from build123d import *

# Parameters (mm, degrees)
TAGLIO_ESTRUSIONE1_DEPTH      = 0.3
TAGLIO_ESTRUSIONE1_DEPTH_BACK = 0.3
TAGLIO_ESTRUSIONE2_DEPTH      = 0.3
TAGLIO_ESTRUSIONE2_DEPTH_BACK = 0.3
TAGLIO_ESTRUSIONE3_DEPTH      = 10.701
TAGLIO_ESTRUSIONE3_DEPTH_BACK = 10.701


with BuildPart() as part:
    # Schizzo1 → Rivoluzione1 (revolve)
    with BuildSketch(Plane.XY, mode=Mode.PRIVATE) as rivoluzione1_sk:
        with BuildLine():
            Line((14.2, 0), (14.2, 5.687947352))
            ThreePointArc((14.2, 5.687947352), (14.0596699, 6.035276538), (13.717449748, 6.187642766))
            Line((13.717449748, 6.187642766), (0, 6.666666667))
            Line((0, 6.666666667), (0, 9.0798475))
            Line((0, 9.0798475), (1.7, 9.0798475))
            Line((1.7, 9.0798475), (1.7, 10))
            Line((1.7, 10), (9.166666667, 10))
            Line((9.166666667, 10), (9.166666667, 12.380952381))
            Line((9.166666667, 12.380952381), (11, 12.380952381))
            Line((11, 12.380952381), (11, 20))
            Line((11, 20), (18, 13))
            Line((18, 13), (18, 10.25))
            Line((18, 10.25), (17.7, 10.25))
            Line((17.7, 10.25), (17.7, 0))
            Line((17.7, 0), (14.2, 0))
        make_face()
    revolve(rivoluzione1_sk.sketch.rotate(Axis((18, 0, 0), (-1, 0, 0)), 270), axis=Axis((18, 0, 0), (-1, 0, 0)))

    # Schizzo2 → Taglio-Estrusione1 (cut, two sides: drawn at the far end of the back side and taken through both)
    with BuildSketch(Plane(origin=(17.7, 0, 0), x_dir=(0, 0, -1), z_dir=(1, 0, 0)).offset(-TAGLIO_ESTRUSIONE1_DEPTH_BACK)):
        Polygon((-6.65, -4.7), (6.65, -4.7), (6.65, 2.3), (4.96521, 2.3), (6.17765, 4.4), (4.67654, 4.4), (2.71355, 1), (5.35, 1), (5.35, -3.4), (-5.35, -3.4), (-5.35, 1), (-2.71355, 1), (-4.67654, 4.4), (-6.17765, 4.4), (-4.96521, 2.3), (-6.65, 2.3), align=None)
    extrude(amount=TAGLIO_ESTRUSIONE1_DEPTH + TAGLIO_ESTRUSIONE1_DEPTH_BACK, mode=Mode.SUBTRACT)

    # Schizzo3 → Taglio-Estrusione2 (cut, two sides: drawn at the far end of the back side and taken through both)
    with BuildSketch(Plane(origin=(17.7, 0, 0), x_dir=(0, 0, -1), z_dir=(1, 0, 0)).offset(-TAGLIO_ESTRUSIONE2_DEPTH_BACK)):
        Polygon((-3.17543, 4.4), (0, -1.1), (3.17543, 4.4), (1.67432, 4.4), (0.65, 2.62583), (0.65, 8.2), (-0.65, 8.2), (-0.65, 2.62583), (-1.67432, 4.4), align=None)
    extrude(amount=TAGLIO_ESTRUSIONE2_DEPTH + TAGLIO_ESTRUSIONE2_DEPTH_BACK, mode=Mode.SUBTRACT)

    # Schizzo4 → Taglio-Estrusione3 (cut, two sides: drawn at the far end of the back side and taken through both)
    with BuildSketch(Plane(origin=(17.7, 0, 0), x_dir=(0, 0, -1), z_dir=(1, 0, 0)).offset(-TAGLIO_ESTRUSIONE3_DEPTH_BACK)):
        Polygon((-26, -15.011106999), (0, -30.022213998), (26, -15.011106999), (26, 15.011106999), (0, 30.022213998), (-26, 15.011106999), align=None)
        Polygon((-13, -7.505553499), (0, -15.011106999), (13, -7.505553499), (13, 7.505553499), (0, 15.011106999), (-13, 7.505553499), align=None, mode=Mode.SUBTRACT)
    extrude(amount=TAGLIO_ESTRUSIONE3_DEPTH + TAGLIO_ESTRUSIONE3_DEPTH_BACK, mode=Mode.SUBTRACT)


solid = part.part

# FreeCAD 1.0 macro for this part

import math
import FreeCAD as App
import Part
import Sketcher
Q = App.Units.Quantity

doc = App.newDocument("Part")
params = doc.addObject("Spreadsheet::Sheet", "Params")
for row, (alias, value) in enumerate([
    ("sketch1_radius", "0.5 mm"),
    ("sketch1_width", "3.5 mm"),
    ("sketch1_width2", "0.3 mm"),
    ("sketch1_width3", "1.7 mm"),
    ("sketch1_height", "10.25 mm"),
    ("revolution_angle", "360 deg"),
    ("sketch2_width", "7 mm"),
    ("sketch2_width2", "4.4 mm"),
    ("sketch2_height", "13.3 mm"),
    ("sketch2_height2", "10.7 mm"),
    ("pocket1_length", "0.3 mm"),
    ("pocket1_length2", "0.3 mm"),
    ("sketch3_height", "1.3 mm"),
    ("pocket2_length", "0.3 mm"),
    ("pocket2_length2", "0.3 mm"),
], start=1):
    params.set(f"A{row}", alias)
    params.set(f"B{row}", "=" + value)
    params.setAlias(f"B{row}", alias)

body = doc.addObject("PartDesign::Body", "Body")

# Sketch on XY plane
sketch1 = doc.addObject("Sketcher::SketchObject", "Sketch")
body.addObject(sketch1)
sketch1.AttachmentSupport = (doc.XY_Plane, [""])
sketch1.MapMode = "FlatFace"
sketch1.addGeometry(Part.LineSegment(App.Vector(14.2, 5.687947, 0), App.Vector(14.2, 0, 0)), False)
sketch1.addGeometry(Part.LineSegment(App.Vector(14.2, 0, 0), App.Vector(17.7, 0, 0)), False)
sketch1.addGeometry(Part.LineSegment(App.Vector(17.7, 0, 0), App.Vector(17.7, 10.25, 0)), False)
sketch1.addGeometry(Part.LineSegment(App.Vector(17.7, 10.25, 0), App.Vector(18, 10.25, 0)), False)
sketch1.addGeometry(Part.LineSegment(App.Vector(18, 10.25, 0), App.Vector(18, 13, 0)), False)
sketch1.addGeometry(Part.LineSegment(App.Vector(18, 13, 0), App.Vector(11, 20, 0)), False)
sketch1.addGeometry(Part.LineSegment(App.Vector(11, 20, 0), App.Vector(11, 12.380952, 0)), False)
sketch1.addGeometry(Part.LineSegment(App.Vector(11, 12.380952, 0), App.Vector(9.166667, 12.380952, 0)), False)
sketch1.addGeometry(Part.LineSegment(App.Vector(9.166667, 12.380952, 0), App.Vector(9.166667, 10, 0)), False)
sketch1.addGeometry(Part.LineSegment(App.Vector(9.166667, 10, 0), App.Vector(1.7, 10, 0)), False)
sketch1.addGeometry(Part.LineSegment(App.Vector(1.7, 10, 0), App.Vector(1.7, 9.079847, 0)), False)
sketch1.addGeometry(Part.LineSegment(App.Vector(1.7, 9.079847, 0), App.Vector(0, 9.079847, 0)), False)
sketch1.addGeometry(Part.LineSegment(App.Vector(0, 9.079847, 0), App.Vector(0, 6.666667, 0)), False)
sketch1.addGeometry(Part.LineSegment(App.Vector(0, 6.666667, 0), App.Vector(13.71745, 6.187643, 0)), False)
sketch1.addGeometry(Part.ArcOfCircle(Part.Circle(App.Vector(13.7, 5.687947, 0), App.Vector(0, 0, 1), 0.5), math.radians(0), math.radians(88)), False)
sketch1.addConstraint(Sketcher.Constraint("Coincident", 0, 2, 1, 1))
sketch1.addConstraint(Sketcher.Constraint("Coincident", 1, 2, 2, 1))
sketch1.addConstraint(Sketcher.Constraint("Coincident", 2, 2, 3, 1))
sketch1.addConstraint(Sketcher.Constraint("Coincident", 3, 2, 4, 1))
sketch1.addConstraint(Sketcher.Constraint("Coincident", 4, 2, 5, 1))
sketch1.addConstraint(Sketcher.Constraint("Coincident", 5, 2, 6, 1))
sketch1.addConstraint(Sketcher.Constraint("Coincident", 6, 2, 7, 1))
sketch1.addConstraint(Sketcher.Constraint("Coincident", 7, 2, 8, 1))
sketch1.addConstraint(Sketcher.Constraint("Coincident", 8, 2, 9, 1))
sketch1.addConstraint(Sketcher.Constraint("Coincident", 9, 2, 10, 1))
sketch1.addConstraint(Sketcher.Constraint("Coincident", 10, 2, 11, 1))
sketch1.addConstraint(Sketcher.Constraint("Coincident", 11, 2, 12, 1))
sketch1.addConstraint(Sketcher.Constraint("Coincident", 12, 2, 13, 1))
sketch1.addConstraint(Sketcher.Constraint("Tangent", 13, 2, 14, 2))
sketch1.addConstraint(Sketcher.Constraint("Tangent", 14, 1, 0, 1))
sketch1.addConstraint(Sketcher.Constraint("Vertical", 0))
sketch1.addConstraint(Sketcher.Constraint("Horizontal", 1))
sketch1.addConstraint(Sketcher.Constraint("Vertical", 2))
sketch1.addConstraint(Sketcher.Constraint("Horizontal", 3))
sketch1.addConstraint(Sketcher.Constraint("Vertical", 4))
sketch1.addConstraint(Sketcher.Constraint("Vertical", 6))
sketch1.addConstraint(Sketcher.Constraint("Horizontal", 7))
sketch1.addConstraint(Sketcher.Constraint("Vertical", 8))
sketch1.addConstraint(Sketcher.Constraint("Horizontal", 9))
sketch1.addConstraint(Sketcher.Constraint("Vertical", 10))
sketch1.addConstraint(Sketcher.Constraint("Horizontal", 11))
sketch1.addConstraint(Sketcher.Constraint("Vertical", 12))
sketch1.addConstraint(Sketcher.Constraint("PointOnObject", 0, 2, -1))
sketch1.addConstraint(Sketcher.Constraint("PointOnObject", 11, 2, -2))
sketch1.addConstraint(Sketcher.Constraint("Radius", 14, Q("0.5 mm")))
sketch1.addConstraint(Sketcher.Constraint("Angle", 5, Q("135 deg")))
sketch1.addConstraint(Sketcher.Constraint("Angle", 13, Q("-2 deg")))
sketch1.addConstraint(Sketcher.Constraint("DistanceX", 1, 1, 1, 2, Q("3.5 mm")))
sketch1.addConstraint(Sketcher.Constraint("DistanceX", 3, 1, 3, 2, Q("0.3 mm")))
sketch1.addConstraint(Sketcher.Constraint("DistanceX", 11, 2, 11, 1, Q("1.7 mm")))
sketch1.addConstraint(Sketcher.Constraint("DistanceX", -1, 1, 3, 2, Q("18 mm")))
sketch1.addConstraint(Sketcher.Constraint("DistanceY", -1, 1, 4, 2, Q("13 mm")))
sketch1.addConstraint(Sketcher.Constraint("DistanceX", -1, 1, 5, 2, Q("11 mm")))
sketch1.addConstraint(Sketcher.Constraint("DistanceY", -1, 1, 8, 2, Q("10 mm")))
sketch1.addConstraint(Sketcher.Constraint("DistanceY", 2, 1, 2, 2, Q("10.25 mm")))
sketch1.addConstraint(Sketcher.Constraint("DistanceY", 12, 2, 12, 1, Q("2.413181 mm")))
sketch1.addConstraint(Sketcher.Constraint("DistanceX", 7, 2, 7, 1, Q("1.833333 mm")))
sketch1.addConstraint(Sketcher.Constraint("DistanceY", 0, 2, 0, 1, Q("5.687947 mm")))
sketch1.addConstraint(Sketcher.Constraint("DistanceY", 6, 2, 6, 1, Q("7.619048 mm")))
sketch1.setExpression("Constraints[29]", "Params.sketch1_radius")
sketch1.setExpression("Constraints[32]", "Params.sketch1_width")
sketch1.setExpression("Constraints[33]", "Params.sketch1_width2")
sketch1.setExpression("Constraints[34]", "Params.sketch1_width3")
sketch1.setExpression("Constraints[39]", "Params.sketch1_height")
revolution = doc.addObject("PartDesign::Revolution", "Revolution")
body.addObject(revolution)
revolution.Profile = sketch1
revolution.ReferenceAxis = (sketch1, ["H_Axis"])
revolution.setExpression("Angle", "Params.revolution_angle")

# Sketch on YZ plane
sketch2 = doc.addObject("Sketcher::SketchObject", "Sketch001")
body.addObject(sketch2)
sketch2.AttachmentSupport = (doc.YZ_Plane, [""])
sketch2.MapMode = "FlatFace"
sketch2.AttachmentOffset = App.Placement(App.Vector(0, 0, 17.7), App.Rotation())
sketch2.addGeometry(Part.LineSegment(App.Vector(-4.7, 6.65, 0), App.Vector(-4.7, -6.65, 0)), False)
sketch2.addGeometry(Part.LineSegment(App.Vector(-4.7, -6.65, 0), App.Vector(2.3, -6.65, 0)), False)
sketch2.addGeometry(Part.LineSegment(App.Vector(2.3, -6.65, 0), App.Vector(2.3, -4.96521, 0)), False)
sketch2.addGeometry(Part.LineSegment(App.Vector(2.3, -4.96521, 0), App.Vector(4.4, -6.17765, 0)), False)
sketch2.addGeometry(Part.LineSegment(App.Vector(4.4, -6.17765, 0), App.Vector(4.4, -4.67654, 0)), False)
sketch2.addGeometry(Part.LineSegment(App.Vector(4.4, -4.67654, 0), App.Vector(1, -2.71355, 0)), False)
sketch2.addGeometry(Part.LineSegment(App.Vector(1, -2.71355, 0), App.Vector(1, -5.35, 0)), False)
sketch2.addGeometry(Part.LineSegment(App.Vector(1, -5.35, 0), App.Vector(-3.4, -5.35, 0)), False)
sketch2.addGeometry(Part.LineSegment(App.Vector(-3.4, -5.35, 0), App.Vector(-3.4, 5.35, 0)), False)
sketch2.addGeometry(Part.LineSegment(App.Vector(-3.4, 5.35, 0), App.Vector(1, 5.35, 0)), False)
sketch2.addGeometry(Part.LineSegment(App.Vector(1, 5.35, 0), App.Vector(1, 2.71355, 0)), False)
sketch2.addGeometry(Part.LineSegment(App.Vector(1, 2.71355, 0), App.Vector(4.4, 4.67654, 0)), False)
sketch2.addGeometry(Part.LineSegment(App.Vector(4.4, 4.67654, 0), App.Vector(4.4, 6.17765, 0)), False)
sketch2.addGeometry(Part.LineSegment(App.Vector(4.4, 6.17765, 0), App.Vector(2.3, 4.96521, 0)), False)
sketch2.addGeometry(Part.LineSegment(App.Vector(2.3, 4.96521, 0), App.Vector(2.3, 6.65, 0)), False)
sketch2.addGeometry(Part.LineSegment(App.Vector(2.3, 6.65, 0), App.Vector(-4.7, 6.65, 0)), False)
sketch2.addConstraint(Sketcher.Constraint("Coincident", 0, 2, 1, 1))
sketch2.addConstraint(Sketcher.Constraint("Coincident", 1, 2, 2, 1))
sketch2.addConstraint(Sketcher.Constraint("Coincident", 2, 2, 3, 1))
sketch2.addConstraint(Sketcher.Constraint("Coincident", 3, 2, 4, 1))
sketch2.addConstraint(Sketcher.Constraint("Coincident", 4, 2, 5, 1))
sketch2.addConstraint(Sketcher.Constraint("Coincident", 5, 2, 6, 1))
sketch2.addConstraint(Sketcher.Constraint("Coincident", 6, 2, 7, 1))
sketch2.addConstraint(Sketcher.Constraint("Coincident", 7, 2, 8, 1))
sketch2.addConstraint(Sketcher.Constraint("Coincident", 8, 2, 9, 1))
sketch2.addConstraint(Sketcher.Constraint("Coincident", 9, 2, 10, 1))
sketch2.addConstraint(Sketcher.Constraint("Coincident", 10, 2, 11, 1))
sketch2.addConstraint(Sketcher.Constraint("Coincident", 11, 2, 12, 1))
sketch2.addConstraint(Sketcher.Constraint("Coincident", 12, 2, 13, 1))
sketch2.addConstraint(Sketcher.Constraint("Coincident", 13, 2, 14, 1))
sketch2.addConstraint(Sketcher.Constraint("Coincident", 14, 2, 15, 1))
sketch2.addConstraint(Sketcher.Constraint("Coincident", 15, 2, 0, 1))
sketch2.addConstraint(Sketcher.Constraint("Vertical", 0))
sketch2.addConstraint(Sketcher.Constraint("Horizontal", 1))
sketch2.addConstraint(Sketcher.Constraint("Vertical", 2))
sketch2.addConstraint(Sketcher.Constraint("Vertical", 4))
sketch2.addConstraint(Sketcher.Constraint("Vertical", 6))
sketch2.addConstraint(Sketcher.Constraint("Horizontal", 7))
sketch2.addConstraint(Sketcher.Constraint("Vertical", 8))
sketch2.addConstraint(Sketcher.Constraint("Horizontal", 9))
sketch2.addConstraint(Sketcher.Constraint("Vertical", 10))
sketch2.addConstraint(Sketcher.Constraint("Vertical", 12))
sketch2.addConstraint(Sketcher.Constraint("Vertical", 14))
sketch2.addConstraint(Sketcher.Constraint("Horizontal", 15))
sketch2.addConstraint(Sketcher.Constraint("Symmetric", 6, 2, 9, 2, -1))
sketch2.addConstraint(Sketcher.Constraint("Symmetric", 4, 2, 11, 2, -1))
sketch2.addConstraint(Sketcher.Constraint("Symmetric", 2, 2, 13, 2, -1))
sketch2.addConstraint(Sketcher.Constraint("Parallel", 3, 5))
sketch2.addConstraint(Sketcher.Constraint("Parallel", 11, 13))
sketch2.addConstraint(Sketcher.Constraint("Equal", 6, 10))
sketch2.addConstraint(Sketcher.Constraint("Equal", 2, 14))
sketch2.addConstraint(Sketcher.Constraint("DistanceX", 1, 1, 1, 2, Q("7 mm")))
sketch2.addConstraint(Sketcher.Constraint("Angle", 5, Q("150.000012 deg")))
sketch2.addConstraint(Sketcher.Constraint("DistanceX", 7, 2, 7, 1, Q("4.4 mm")))
sketch2.addConstraint(Sketcher.Constraint("DistanceY", 0, 2, 0, 1, Q("13.3 mm")))
sketch2.addConstraint(Sketcher.Constraint("DistanceY", 8, 1, 8, 2, Q("10.7 mm")))
sketch2.addConstraint(Sketcher.Constraint("DistanceX", -1, 1, 5, 2, Q("1 mm")))
sketch2.addConstraint(Sketcher.Constraint("DistanceX", 0, 2, -1, 1, Q("4.7 mm")))
sketch2.addConstraint(Sketcher.Constraint("DistanceX", -1, 1, 3, 2, Q("4.4 mm")))
sketch2.addConstraint(Sketcher.Constraint("DistanceY", 2, 1, 2, 2, Q("1.68479 mm")))
sketch2.addConstraint(Sketcher.Constraint("DistanceY", 4, 1, 4, 2, Q("1.50111 mm")))
sketch2.setExpression("Constraints[35]", "Params.sketch2_width")
sketch2.setExpression("Constraints[37]", "Params.sketch2_width2")
sketch2.setExpression("Constraints[38]", "Params.sketch2_height")
sketch2.setExpression("Constraints[39]", "Params.sketch2_height2")
pocket1 = doc.addObject("PartDesign::Pocket", "Pocket")
body.addObject(pocket1)
pocket1.Profile = sketch2
pocket1.Type = "TwoLengths"
pocket1.setExpression("Length", "Params.pocket1_length")
pocket1.setExpression("Length2", "Params.pocket1_length2")
pocket1.Reversed = True

# Sketch on YZ plane
sketch3 = doc.addObject("Sketcher::SketchObject", "Sketch002")
body.addObject(sketch3)
sketch3.AttachmentSupport = (doc.YZ_Plane, [""])
sketch3.MapMode = "FlatFace"
sketch3.AttachmentOffset = App.Placement(App.Vector(0, 0, 17.7), App.Rotation())
sketch3.addGeometry(Part.LineSegment(App.Vector(4.4, 3.17543, 0), App.Vector(-1.1, 0, 0)), False)
sketch3.addGeometry(Part.LineSegment(App.Vector(-1.1, 0, 0), App.Vector(4.4, -3.17543, 0)), False)
sketch3.addGeometry(Part.LineSegment(App.Vector(4.4, -3.17543, 0), App.Vector(4.4, -1.67432, 0)), False)
sketch3.addGeometry(Part.LineSegment(App.Vector(4.4, -1.67432, 0), App.Vector(2.62583, -0.65, 0)), False)
sketch3.addGeometry(Part.LineSegment(App.Vector(2.62583, -0.65, 0), App.Vector(8.2, -0.65, 0)), False)
sketch3.addGeometry(Part.LineSegment(App.Vector(8.2, -0.65, 0), App.Vector(8.2, 0.65, 0)), False)
sketch3.addGeometry(Part.LineSegment(App.Vector(8.2, 0.65, 0), App.Vector(2.62583, 0.65, 0)), False)
sketch3.addGeometry(Part.LineSegment(App.Vector(2.62583, 0.65, 0), App.Vector(4.4, 1.67432, 0)), False)
sketch3.addGeometry(Part.LineSegment(App.Vector(4.4, 1.67432, 0), App.Vector(4.4, 3.17543, 0)), False)
sketch3.addConstraint(Sketcher.Constraint("Coincident", 0, 2, 1, 1))
sketch3.addConstraint(Sketcher.Constraint("Coincident", 1, 2, 2, 1))
sketch3.addConstraint(Sketcher.Constraint("Coincident", 2, 2, 3, 1))
sketch3.addConstraint(Sketcher.Constraint("Coincident", 3, 2, 4, 1))
sketch3.addConstraint(Sketcher.Constraint("Coincident", 4, 2, 5, 1))
sketch3.addConstraint(Sketcher.Constraint("Coincident", 5, 2, 6, 1))
sketch3.addConstraint(Sketcher.Constraint("Coincident", 6, 2, 7, 1))
sketch3.addConstraint(Sketcher.Constraint("Coincident", 7, 2, 8, 1))
sketch3.addConstraint(Sketcher.Constraint("Coincident", 8, 2, 0, 1))
sketch3.addConstraint(Sketcher.Constraint("Vertical", 2))
sketch3.addConstraint(Sketcher.Constraint("Horizontal", 4))
sketch3.addConstraint(Sketcher.Constraint("Vertical", 5))
sketch3.addConstraint(Sketcher.Constraint("Horizontal", 6))
sketch3.addConstraint(Sketcher.Constraint("Vertical", 8))
sketch3.addConstraint(Sketcher.Constraint("Symmetric", 3, 2, 6, 2, -1))
sketch3.addConstraint(Sketcher.Constraint("Symmetric", 2, 2, 7, 2, -1))
sketch3.addConstraint(Sketcher.Constraint("PointOnObject", 0, 2, -1))
sketch3.addConstraint(Sketcher.Constraint("Parallel", 1, 3))
sketch3.addConstraint(Sketcher.Constraint("Parallel", 0, 7))
sketch3.addConstraint(Sketcher.Constraint("DistanceY", 5, 1, 5, 2, Q("1.3 mm")))
sketch3.addConstraint(Sketcher.Constraint("DistanceX", 0, 2, -1, 1, Q("1.1 mm")))
sketch3.addConstraint(Sketcher.Constraint("DistanceX", -1, 1, 1, 2, Q("4.4 mm")))
sketch3.addConstraint(Sketcher.Constraint("DistanceX", -1, 1, 4, 2, Q("8.2 mm")))
sketch3.addConstraint(Sketcher.Constraint("DistanceX", 4, 1, 4, 2, Q("5.57417 mm")))
sketch3.addConstraint(Sketcher.Constraint("DistanceY", 2, 1, 2, 2, Q("1.50111 mm")))
sketch3.setExpression("Constraints[19]", "Params.sketch3_height")
pocket2 = doc.addObject("PartDesign::Pocket", "Pocket001")
body.addObject(pocket2)
pocket2.Profile = sketch3
pocket2.Type = "TwoLengths"
pocket2.setExpression("Length", "Params.pocket2_length")
pocket2.setExpression("Length2", "Params.pocket2_length2")
pocket2.Reversed = True

# Sketch on YZ plane
sketch4 = doc.addObject("Sketcher::SketchObject", "Sketch003")
body.addObject(sketch4)
sketch4.AttachmentSupport = (doc.YZ_Plane, [""])
sketch4.MapMode = "FlatFace"
sketch4.AttachmentOffset = App.Placement(App.Vector(0, 0, 17.7), App.Rotation())
sketch4.addGeometry(Part.LineSegment(App.Vector(-15.011107, 26, 0), App.Vector(-30.022214, 0, 0)), False)
sketch4.addGeometry(Part.LineSegment(App.Vector(-30.022214, 0, 0), App.Vector(-15.011107, -26, 0)), False)
sketch4.addGeometry(Part.LineSegment(App.Vector(-15.011107, -26, 0), App.Vector(15.011107, -26, 0)), False)
sketch4.addGeometry(Part.LineSegment(App.Vector(15.011107, -26, 0), App.Vector(30.022214, 0, 0)), False)
sketch4.addGeometry(Part.LineSegment(App.Vector(30.022214, 0, 0), App.Vector(15.011107, 26, 0)), False)
sketch4.addGeometry(Part.LineSegment(App.Vector(15.011107, 26, 0), App.Vector(-15.011107, 26, 0)), False)
sketch4.addGeometry(Part.LineSegment(App.Vector(-15.011107, 0, 0), App.Vector(-7.505553, 13, 0)), False)
sketch4.addGeometry(Part.LineSegment(App.Vector(-7.505553, 13, 0), App.Vector(7.505553, 13, 0)), False)
sketch4.addGeometry(Part.LineSegment(App.Vector(7.505553, 13, 0), App.Vector(15.011107, 0, 0)), False)
sketch4.addGeometry(Part.LineSegment(App.Vector(15.011107, 0, 0), App.Vector(7.505553, -13, 0)), False)
sketch4.addGeometry(Part.LineSegment(App.Vector(7.505553, -13, 0), App.Vector(-7.505553, -13, 0)), False)
sketch4.addGeometry(Part.LineSegment(App.Vector(-7.505553, -13, 0), App.Vector(-15.011107, 0, 0)), False)
sketch4.addConstraint(Sketcher.Constraint("Coincident", 0, 2, 1, 1))
sketch4.addConstraint(Sketcher.Constraint("Coincident", 1, 2, 2, 1))
sketch4.addConstraint(Sketcher.Constraint("Coincident", 2, 2, 3, 1))
sketch4.addConstraint(Sketcher.Constraint("Coincident", 3, 2, 4, 1))
sketch4.addConstraint(Sketcher.Constraint("Coincident", 4, 2, 5, 1))
sketch4.addConstraint(Sketcher.Constraint("Coincident", 5, 2, 0, 1))
sketch4.addConstraint(Sketcher.Constraint("Coincident", 6, 2, 7, 1))
sketch4.addConstraint(Sketcher.Constraint("Coincident", 7, 2, 8, 1))
sketch4.addConstraint(Sketcher.Constraint("Coincident", 8, 2, 9, 1))
sketch4.addConstraint(Sketcher.Constraint("Coincident", 9, 2, 10, 1))
sketch4.addConstraint(Sketcher.Constraint("Coincident", 10, 2, 11, 1))
sketch4.addConstraint(Sketcher.Constraint("Coincident", 11, 2, 6, 1))
sketch4.addConstraint(Sketcher.Constraint("Horizontal", 2))
sketch4.addConstraint(Sketcher.Constraint("Horizontal", 5))
sketch4.addConstraint(Sketcher.Constraint("Horizontal", 7))
sketch4.addConstraint(Sketcher.Constraint("Horizontal", 10))
sketch4.addConstraint(Sketcher.Constraint("Symmetric", 0, 2, 3, 2, -1, 1))
sketch4.addConstraint(Sketcher.Constraint("Symmetric", 1, 2, 4, 2, -1, 1))
sketch4.addConstraint(Sketcher.Constraint("Symmetric", 6, 2, 9, 2, -1, 1))
sketch4.addConstraint(Sketcher.Constraint("Symmetric", 8, 2, 11, 2, -1, 1))
sketch4.addConstraint(Sketcher.Constraint("PointOnObject", 0, 2, -1))
sketch4.addConstraint(Sketcher.Constraint("PointOnObject", 8, 2, -1))
sketch4.addConstraint(Sketcher.Constraint("Parallel", 0, 3))
sketch4.addConstraint(Sketcher.Constraint("Parallel", 3, 6))
sketch4.addConstraint(Sketcher.Constraint("Parallel", 4, 8))
sketch4.addConstraint(Sketcher.Constraint("Parallel", 8, 11))
sketch4.addConstraint(Sketcher.Constraint("Vertical", 2, 2, 4, 2))
sketch4.addConstraint(Sketcher.Constraint("Vertical", 4, 2, 8, 2))
sketch4.addConstraint(Sketcher.Constraint("Angle", 0, Q("-120 deg")))
sketch4.addConstraint(Sketcher.Constraint("DistanceY", 1, 2, -1, 1, Q("26 mm")))
sketch4.addConstraint(Sketcher.Constraint("DistanceY", -1, 1, 6, 2, Q("13 mm")))
sketch4.addConstraint(Sketcher.Constraint("DistanceX", 2, 1, 2, 2, Q("30.022214 mm")))
pocket3 = doc.addObject("PartDesign::Pocket", "Pocket002")
body.addObject(pocket3)
pocket3.Profile = sketch4
pocket3.Type = "ThroughAll"
pocket3.Midplane = True

doc.recompute()
